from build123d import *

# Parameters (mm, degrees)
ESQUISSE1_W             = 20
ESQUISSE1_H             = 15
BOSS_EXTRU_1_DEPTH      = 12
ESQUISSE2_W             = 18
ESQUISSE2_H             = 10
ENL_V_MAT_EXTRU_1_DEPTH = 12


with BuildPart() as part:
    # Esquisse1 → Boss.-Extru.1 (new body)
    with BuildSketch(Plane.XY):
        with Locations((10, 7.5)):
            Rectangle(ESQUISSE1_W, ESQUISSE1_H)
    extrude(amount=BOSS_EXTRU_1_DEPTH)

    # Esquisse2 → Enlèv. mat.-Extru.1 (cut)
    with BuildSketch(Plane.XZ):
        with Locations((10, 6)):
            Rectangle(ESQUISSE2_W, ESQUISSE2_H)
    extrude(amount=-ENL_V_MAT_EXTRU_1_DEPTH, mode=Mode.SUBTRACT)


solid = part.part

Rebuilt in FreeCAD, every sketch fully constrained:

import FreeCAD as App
import Part
import Sketcher

V = App.Vector


def add_polygon(sketch, points):
    """Adds a closed chain of lines whose ends are joined by coincident constraints."""
    first, n = sketch.GeometryCount, len(points)
    for a, b in zip(points, points[1:] + points[:1]):
        sketch.addGeometry(Part.LineSegment(App.Vector(*a, 0), App.Vector(*b, 0)), False)
    for i in range(n):
        sketch.addConstraint(Sketcher.Constraint("Coincident", first + i, 2, first + (i + 1) % n, 1))

doc = App.newDocument("Part")
params = doc.addObject("Spreadsheet::Sheet", "Params")
for row, (alias, value) in enumerate([
    ("sketch1_width", "20 mm"),
    ("sketch1_height", "15 mm"),
    ("pad1_length", "12 mm"),
    ("sketch2_width", "18 mm"),
    ("sketch2_height", "10 mm"),
    ("pocket1_length", "12 mm"),
], start=1):
    params.set(f"A{row}", alias)
    params.set(f"B{row}", "=" + value)
    params.setAlias(f"B{row}", alias)

body = doc.addObject("PartDesign::Body", "Body")

sketch1 = doc.addObject("Sketcher::SketchObject", "Sketch")
body.addObject(sketch1)
sketch1.AttachmentSupport = (doc.XY_Plane, [""])
sketch1.MapMode = "FlatFace"
add_polygon(sketch1, [(0, 15), (0, 0), (20, 0), (20, 15)])
sketch1.addConstraint(Sketcher.Constraint("Vertical", 0))
sketch1.addConstraint(Sketcher.Constraint("Horizontal", 1))
sketch1.addConstraint(Sketcher.Constraint("Vertical", 2))
sketch1.addConstraint(Sketcher.Constraint("Horizontal", 3))
sketch1.addConstraint(Sketcher.Constraint("Coincident", 0, 2, -1, 1))
sketch1.addConstraint(Sketcher.Constraint("DistanceX", 1, 1, 1, 2, 20.0))
sketch1.addConstraint(Sketcher.Constraint("DistanceY", 0, 2, 0, 1, 15.0))
sketch1.setExpression("Constraints[9]", "Params.sketch1_width")
sketch1.setExpression("Constraints[10]", "Params.sketch1_height")
pad1 = doc.addObject("PartDesign::Pad", "Pad")
body.addObject(pad1)
pad1.Profile = sketch1
pad1.setExpression("Length", "Params.pad1_length")

sketch2 = doc.addObject("Sketcher::SketchObject", "Sketch001")
body.addObject(sketch2)
sketch2.AttachmentSupport = (doc.XZ_Plane, [""])
sketch2.MapMode = "FlatFace"
add_polygon(sketch2, [(1, 11), (1, 1), (19, 1), (19, 11)])
sketch2.addConstraint(Sketcher.Constraint("Vertical", 0))
sketch2.addConstraint(Sketcher.Constraint("Horizontal", 1))
sketch2.addConstraint(Sketcher.Constraint("Vertical", 2))
sketch2.addConstraint(Sketcher.Constraint("Horizontal", 3))
sketch2.addConstraint(Sketcher.Constraint("DistanceX", 1, 1, 1, 2, 18.0))
sketch2.addConstraint(Sketcher.Constraint("DistanceY", 0, 2, 0, 1, 10.0))
sketch2.addConstraint(Sketcher.Constraint("DistanceX", -1, 1, 0, 2, 1.0))
sketch2.addConstraint(Sketcher.Constraint("DistanceY", -1, 1, 0, 2, 1.0))
sketch2.setExpression("Constraints[8]", "Params.sketch2_width")
sketch2.setExpression("Constraints[9]", "Params.sketch2_height")
pocket1 = doc.addObject("PartDesign::Pocket", "Pocket")
body.addObject(pocket1)
pocket1.Profile = sketch2
pocket1.setExpression("Length", "Params.pocket1_length")

doc.recompute()
